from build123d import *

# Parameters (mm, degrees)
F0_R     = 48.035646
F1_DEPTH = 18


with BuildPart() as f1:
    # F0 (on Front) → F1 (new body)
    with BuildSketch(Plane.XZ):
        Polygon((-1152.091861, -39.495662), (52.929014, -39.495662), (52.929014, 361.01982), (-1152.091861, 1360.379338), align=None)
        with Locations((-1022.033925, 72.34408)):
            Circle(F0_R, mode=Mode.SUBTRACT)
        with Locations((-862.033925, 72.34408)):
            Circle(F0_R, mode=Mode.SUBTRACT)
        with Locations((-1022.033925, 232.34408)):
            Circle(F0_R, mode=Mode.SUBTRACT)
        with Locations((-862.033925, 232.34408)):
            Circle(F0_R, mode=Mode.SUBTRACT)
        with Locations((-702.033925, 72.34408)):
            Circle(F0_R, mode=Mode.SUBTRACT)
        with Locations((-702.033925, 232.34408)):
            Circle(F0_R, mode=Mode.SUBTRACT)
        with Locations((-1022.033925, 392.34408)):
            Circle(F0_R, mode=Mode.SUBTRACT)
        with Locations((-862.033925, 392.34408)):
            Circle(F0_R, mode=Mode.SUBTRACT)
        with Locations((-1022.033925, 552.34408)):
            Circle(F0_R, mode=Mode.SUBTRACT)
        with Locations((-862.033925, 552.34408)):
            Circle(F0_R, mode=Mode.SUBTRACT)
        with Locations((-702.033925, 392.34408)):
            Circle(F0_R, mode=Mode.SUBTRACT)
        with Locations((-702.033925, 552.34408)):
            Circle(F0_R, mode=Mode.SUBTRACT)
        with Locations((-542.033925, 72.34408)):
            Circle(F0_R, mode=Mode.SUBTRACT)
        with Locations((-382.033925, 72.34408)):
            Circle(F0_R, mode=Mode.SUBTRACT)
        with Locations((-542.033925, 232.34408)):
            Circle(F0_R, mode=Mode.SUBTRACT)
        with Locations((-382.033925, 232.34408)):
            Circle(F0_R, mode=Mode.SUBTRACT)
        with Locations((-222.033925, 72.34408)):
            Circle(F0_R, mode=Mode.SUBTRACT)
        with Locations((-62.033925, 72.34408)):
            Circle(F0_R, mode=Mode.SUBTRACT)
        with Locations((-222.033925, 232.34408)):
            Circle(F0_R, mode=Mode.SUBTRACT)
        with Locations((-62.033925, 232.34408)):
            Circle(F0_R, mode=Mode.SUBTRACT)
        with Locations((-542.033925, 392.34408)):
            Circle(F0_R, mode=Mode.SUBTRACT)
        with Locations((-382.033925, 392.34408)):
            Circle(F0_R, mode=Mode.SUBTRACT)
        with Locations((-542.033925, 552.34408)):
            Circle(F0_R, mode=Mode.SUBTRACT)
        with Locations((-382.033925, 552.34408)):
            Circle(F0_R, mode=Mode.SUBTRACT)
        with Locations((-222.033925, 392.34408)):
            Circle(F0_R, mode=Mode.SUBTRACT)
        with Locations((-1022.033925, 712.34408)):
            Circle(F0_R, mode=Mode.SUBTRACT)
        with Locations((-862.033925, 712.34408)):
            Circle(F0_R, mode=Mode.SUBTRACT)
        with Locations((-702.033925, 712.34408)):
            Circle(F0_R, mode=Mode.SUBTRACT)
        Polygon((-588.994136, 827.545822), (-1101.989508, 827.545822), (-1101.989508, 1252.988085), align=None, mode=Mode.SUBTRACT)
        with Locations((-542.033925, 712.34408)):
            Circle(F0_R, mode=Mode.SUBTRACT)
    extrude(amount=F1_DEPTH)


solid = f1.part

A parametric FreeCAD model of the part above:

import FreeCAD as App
import Part
import Sketcher
from FreeCAD import Vector

doc = App.newDocument("Part")
body = doc.addObject("PartDesign::Body", "Body")

# Sketch on XZ plane
sketch1 = body.newObject("Sketcher::SketchObject", "Sketch")
sketch1.AttachmentSupport = (doc.getObject("XZ_Plane"), [""])
sketch1.MapMode = "FlatFace"
sketch1.addGeometry(Part.LineSegment(Vector(-1152.091861, -39.495662, 0), Vector(52.929014, -39.495662, 0)), False)
sketch1.addGeometry(Part.LineSegment(Vector(52.929014, -39.495662, 0), Vector(52.929014, 361.01982, 0)), False)
sketch1.addGeometry(Part.LineSegment(Vector(52.929014, 361.01982, 0), Vector(-1152.091861, 1360.379338, 0)), False)
sketch1.addGeometry(Part.LineSegment(Vector(-1152.091861, 1360.379338, 0), Vector(-1152.091861, -39.495662, 0)), False)
sketch1.addGeometry(Part.Circle(Vector(-1022.033925, 72.34408, 0), Vector(0, 0, 1), 48.035646), False)
sketch1.addGeometry(Part.Circle(Vector(-862.033925, 72.34408, 0), Vector(0, 0, 1), 48.035646), False)
sketch1.addGeometry(Part.Circle(Vector(-1022.033925, 232.34408, 0), Vector(0, 0, 1), 48.035646), False)
sketch1.addGeometry(Part.Circle(Vector(-862.033925, 232.34408, 0), Vector(0, 0, 1), 48.035646), False)
sketch1.addGeometry(Part.Circle(Vector(-702.033925, 72.34408, 0), Vector(0, 0, 1), 48.035646), False)
sketch1.addGeometry(Part.Circle(Vector(-702.033925, 232.34408, 0), Vector(0, 0, 1), 48.035646), False)
sketch1.addGeometry(Part.Circle(Vector(-1022.033925, 392.34408, 0), Vector(0, 0, 1), 48.035646), False)
sketch1.addGeometry(Part.Circle(Vector(-862.033925, 392.34408, 0), Vector(0, 0, 1), 48.035646), False)
sketch1.addGeometry(Part.Circle(Vector(-1022.033925, 552.34408, 0), Vector(0, 0, 1), 48.035646), False)
sketch1.addGeometry(Part.Circle(Vector(-862.033925, 552.34408, 0), Vector(0, 0, 1), 48.035646), False)
sketch1.addGeometry(Part.Circle(Vector(-702.033925, 392.34408, 0), Vector(0, 0, 1), 48.035646), False)
sketch1.addGeometry(Part.Circle(Vector(-702.033925, 552.34408, 0), Vector(0, 0, 1), 48.035646), False)
sketch1.addGeometry(Part.Circle(Vector(-542.033925, 72.34408, 0), Vector(0, 0, 1), 48.035646), False)
sketch1.addGeometry(Part.Circle(Vector(-382.033925, 72.34408, 0), Vector(0, 0, 1), 48.035646), False)
sketch1.addGeometry(Part.Circle(Vector(-542.033925, 232.34408, 0), Vector(0, 0, 1), 48.035646), False)
sketch1.addGeometry(Part.Circle(Vector(-382.033925, 232.34408, 0), Vector(0, 0, 1), 48.035646), False)
sketch1.addGeometry(Part.Circle(Vector(-222.033925, 72.34408, 0), Vector(0, 0, 1), 48.035646), False)
sketch1.addGeometry(Part.Circle(Vector(-62.033925, 72.34408, 0), Vector(0, 0, 1), 48.035646), False)
sketch1.addGeometry(Part.Circle(Vector(-222.033925, 232.34408, 0), Vector(0, 0, 1), 48.035646), False)
sketch1.addGeometry(Part.Circle(Vector(-62.033925, 232.34408, 0), Vector(0, 0, 1), 48.035646), False)
sketch1.addGeometry(Part.Circle(Vector(-542.033925, 392.34408, 0), Vector(0, 0, 1), 48.035646), False)
sketch1.addGeometry(Part.Circle(Vector(-382.033925, 392.34408, 0), Vector(0, 0, 1), 48.035646), False)
sketch1.addGeometry(Part.Circle(Vector(-542.033925, 552.34408, 0), Vector(0, 0, 1), 48.035646), False)
sketch1.addGeometry(Part.Circle(Vector(-382.033925, 552.34408, 0), Vector(0, 0, 1), 48.035646), False)
sketch1.addGeometry(Part.Circle(Vector(-222.033925, 392.34408, 0), Vector(0, 0, 1), 48.035646), False)
sketch1.addGeometry(Part.Circle(Vector(-1022.033925, 712.34408, 0), Vector(0, 0, 1), 48.035646), False)
sketch1.addGeometry(Part.Circle(Vector(-862.033925, 712.34408, 0), Vector(0, 0, 1), 48.035646), False)
sketch1.addGeometry(Part.Circle(Vector(-702.033925, 712.34408, 0), Vector(0, 0, 1), 48.035646), False)
sketch1.addGeometry(Part.LineSegment(Vector(-1101.989508, 1252.988085, 0), Vector(-588.994136, 827.545822, 0)), False)
sketch1.addGeometry(Part.LineSegment(Vector(-588.994136, 827.545822, 0), Vector(-1101.989508, 827.545822, 0)), False)
sketch1.addGeometry(Part.LineSegment(Vector(-1101.989508, 827.545822, 0), Vector(-1101.989508, 1252.988085, 0)), False)
sketch1.addGeometry(Part.Circle(Vector(-542.033925, 712.34408, 0), Vector(0, 0, 1), 48.035646), False)
sketch1.addConstraint(Sketcher.Constraint("Coincident", 0, 2, 1, 1))
sketch1.addConstraint(Sketcher.Constraint("Coincident", 1, 2, 2, 1))
sketch1.addConstraint(Sketcher.Constraint("Coincident", 2, 2, 3, 1))
sketch1.addConstraint(Sketcher.Constraint("Coincident", 3, 2, 0, 1))
sketch1.addConstraint(Sketcher.Constraint("Coincident", 32, 2, 33, 1))
sketch1.addConstraint(Sketcher.Constraint("Coincident", 33, 2, 34, 1))
sketch1.addConstraint(Sketcher.Constraint("Coincident", 34, 2, 32, 1))
sketch1.addConstraint(Sketcher.Constraint("Horizontal", 0))
sketch1.addConstraint(Sketcher.Constraint("Vertical", 1))
sketch1.addConstraint(Sketcher.Constraint("Vertical", 3))
sketch1.addConstraint(Sketcher.Constraint("Horizontal", 33))
sketch1.addConstraint(Sketcher.Constraint("Vertical", 34))
sketch1.addConstraint(Sketcher.Constraint("Equal", 4, 5))
sketch1.addConstraint(Sketcher.Constraint("Equal", 5, 6))
sketch1.addConstraint(Sketcher.Constraint("Equal", 6, 7))
sketch1.addConstraint(Sketcher.Constraint("Equal", 7, 8))
sketch1.addConstraint(Sketcher.Constraint("Equal", 8, 9))
sketch1.addConstraint(Sketcher.Constraint("Equal", 9, 10))
sketch1.addConstraint(Sketcher.Constraint("Equal", 10, 11))
sketch1.addConstraint(Sketcher.Constraint("Equal", 11, 12))
sketch1.addConstraint(Sketcher.Constraint("Equal", 12, 13))
sketch1.addConstraint(Sketcher.Constraint("Equal", 13, 14))
sketch1.addConstraint(Sketcher.Constraint("Equal", 14, 15))
sketch1.addConstraint(Sketcher.Constraint("Equal", 15, 16))
sketch1.addConstraint(Sketcher.Constraint("Equal", 16, 17))
sketch1.addConstraint(Sketcher.Constraint("Equal", 17, 18))
sketch1.addConstraint(Sketcher.Constraint("Equal", 18, 19))
sketch1.addConstraint(Sketcher.Constraint("Equal", 19, 20))
sketch1.addConstraint(Sketcher.Constraint("Equal", 20, 21))
sketch1.addConstraint(Sketcher.Constraint("Equal", 21, 22))
sketch1.addConstraint(Sketcher.Constraint("Equal", 22, 23))
sketch1.addConstraint(Sketcher.Constraint("Equal", 23, 24))
sketch1.addConstraint(Sketcher.Constraint("Equal", 24, 25))
sketch1.addConstraint(Sketcher.Constraint("Equal", 25, 26))
sketch1.addConstraint(Sketcher.Constraint("Equal", 26, 27))
sketch1.addConstraint(Sketcher.Constraint("Equal", 27, 28))
sketch1.addConstraint(Sketcher.Constraint("Equal", 28, 29))
sketch1.addConstraint(Sketcher.Constraint("Equal", 29, 30))
sketch1.addConstraint(Sketcher.Constraint("Equal", 30, 31))
sketch1.addConstraint(Sketcher.Constraint("Equal", 31, 35))
sketch1.addConstraint(Sketcher.Constraint("Parallel", 2, 32))
sketch1.addConstraint(Sketcher.Constraint("Horizontal", 4, 3, 5, 3))
sketch1.addConstraint(Sketcher.Constraint("Horizontal", 6, 3, 7, 3))
sketch1.addConstraint(Sketcher.Constraint("Horizontal", 5, 3, 8, 3))
sketch1.addConstraint(Sketcher.Constraint("Horizontal", 7, 3, 9, 3))
sketch1.addConstraint(Sketcher.Constraint("Horizontal", 10, 3, 11, 3))
sketch1.addConstraint(Sketcher.Constraint("Horizontal", 12, 3, 13, 3))
sketch1.addConstraint(Sketcher.Constraint("Horizontal", 11, 3, 14, 3))
sketch1.addConstraint(Sketcher.Constraint("Horizontal", 13, 3, 15, 3))
sketch1.addConstraint(Sketcher.Constraint("Horizontal", 8, 3, 16, 3))
sketch1.addConstraint(Sketcher.Constraint("Horizontal", 16, 3, 17, 3))
sketch1.addConstraint(Sketcher.Constraint("Horizontal", 9, 3, 18, 3))
sketch1.addConstraint(Sketcher.Constraint("Horizontal", 18, 3, 19, 3))
sketch1.addConstraint(Sketcher.Constraint("Horizontal", 17, 3, 20, 3))
sketch1.addConstraint(Sketcher.Constraint("Horizontal", 20, 3, 21, 3))
sketch1.addConstraint(Sketcher.Constraint("Horizontal", 19, 3, 22, 3))
sketch1.addConstraint(Sketcher.Constraint("Horizontal", 22, 3, 23, 3))
sketch1.addConstraint(Sketcher.Constraint("Horizontal", 14, 3, 24, 3))
sketch1.addConstraint(Sketcher.Constraint("Horizontal", 24, 3, 25, 3))
sketch1.addConstraint(Sketcher.Constraint("Horizontal", 15, 3, 26, 3))
sketch1.addConstraint(Sketcher.Constraint("Horizontal", 26, 3, 27, 3))
sketch1.addConstraint(Sketcher.Constraint("Horizontal", 25, 3, 28, 3))
sketch1.addConstraint(Sketcher.Constraint("Horizontal", 29, 3, 30, 3))
sketch1.addConstraint(Sketcher.Constraint("Horizontal", 30, 3, 31, 3))
sketch1.addConstraint(Sketcher.Constraint("Horizontal", 31, 3, 35, 3))
sketch1.addConstraint(Sketcher.Constraint("Vertical", 4, 3, 6, 3))
sketch1.addConstraint(Sketcher.Constraint("Vertical", 5, 3, 7, 3))
sketch1.addConstraint(Sketcher.Constraint("Vertical", 8, 3, 9, 3))
sketch1.addConstraint(Sketcher.Constraint("Vertical", 6, 3, 10, 3))
sketch1.addConstraint(Sketcher.Constraint("Vertical", 7, 3, 11, 3))
sketch1.addConstraint(Sketcher.Constraint("Vertical", 10, 3, 12, 3))
sketch1.addConstraint(Sketcher.Constraint("Vertical", 11, 3, 13, 3))
sketch1.addConstraint(Sketcher.Constraint("Vertical", 9, 3, 14, 3))
sketch1.addConstraint(Sketcher.Constraint("Vertical", 14, 3, 15, 3))
sketch1.addConstraint(Sketcher.Constraint("Vertical", 16, 3, 18, 3))
sketch1.addConstraint(Sketcher.Constraint("Vertical", 17, 3, 19, 3))
sketch1.addConstraint(Sketcher.Constraint("Vertical", 20, 3, 22, 3))
sketch1.addConstraint(Sketcher.Constraint("Vertical", 21, 3, 23, 3))
sketch1.addConstraint(Sketcher.Constraint("Vertical", 18, 3, 24, 3))
sketch1.addConstraint(Sketcher.Constraint("Vertical", 19, 3, 25, 3))
sketch1.addConstraint(Sketcher.Constraint("Vertical", 24, 3, 26, 3))
sketch1.addConstraint(Sketcher.Constraint("Vertical", 25, 3, 27, 3))
sketch1.addConstraint(Sketcher.Constraint("Vertical", 22, 3, 28, 3))
sketch1.addConstraint(Sketcher.Constraint("Vertical", 12, 3, 29, 3))
sketch1.addConstraint(Sketcher.Constraint("Vertical", 13, 3, 30, 3))
sketch1.addConstraint(Sketcher.Constraint("Vertical", 15, 3, 31, 3))
sketch1.addConstraint(Sketcher.Constraint("Vertical", 26, 3, 35, 3))
sketch1.addConstraint(Sketcher.Constraint("DistanceX", 4, 3, 5, 3, 160.0))
sketch1.addConstraint(Sketcher.Constraint("DistanceY", 4, 3, 6, 3, 160.0))
sketch1.addConstraint(Sketcher.Constraint("DistanceX", 5, 3, 8, 3, 160.0))
sketch1.addConstraint(Sketcher.Constraint("DistanceY", 6, 3, 10, 3, 160.0))
sketch1.addConstraint(Sketcher.Constraint("DistanceY", 10, 3, 12, 3, 160.0))
sketch1.addConstraint(Sketcher.Constraint("DistanceX", 8, 3, 16, 3, 160.0))
sketch1.addConstraint(Sketcher.Constraint("DistanceX", 16, 3, 17, 3, 160.0))
sketch1.addConstraint(Sketcher.Constraint("DistanceX", 17, 3, 20, 3, 160.0))
sketch1.addConstraint(Sketcher.Constraint("DistanceX", 20, 3, 21, 3, 160.0))
sketch1.addConstraint(Sketcher.Constraint("DistanceY", 12, 3, 29, 3, 160.0))
sketch1.addConstraint(Sketcher.Constraint("Diameter", 4, 96.071292))
sketch1.addConstraint(Sketcher.Constraint("DistanceY", 3, 2, 3, 1, 1399.875))
sketch1.addConstraint(Sketcher.Constraint("DistanceX", 33, 2, 33, 1, 512.995372))
sketch1.addConstraint(Sketcher.Constraint("DistanceY", 1, 1, 1, 2, 400.515482))
sketch1.addConstraint(Sketcher.Constraint("Distance", 2, 1565.501439))
sketch1.addConstraint(Sketcher.Constraint("DistanceY", -1, 1, 4, 3, 72.34408))
sketch1.addConstraint(Sketcher.Constraint("DistanceY", -1, 1, 1, 2, 361.01982))
sketch1.addConstraint(Sketcher.Constraint("DistanceX", 2, 2, -1, 1, 1152.091861))
sketch1.addConstraint(Sketcher.Constraint("DistanceY", -1, 1, 32, 2, 827.545822))
sketch1.addConstraint(Sketcher.Constraint("DistanceX", 21, 3, 0, 2, 114.962939))
sketch1.addConstraint(Sketcher.Constraint("DistanceX", 32, 2, 35, 3, 46.960211))
pad1 = body.newObject("PartDesign::Pad", "Pad")
pad1.Profile = sketch1
pad1.Length = 18

doc.recompute()
